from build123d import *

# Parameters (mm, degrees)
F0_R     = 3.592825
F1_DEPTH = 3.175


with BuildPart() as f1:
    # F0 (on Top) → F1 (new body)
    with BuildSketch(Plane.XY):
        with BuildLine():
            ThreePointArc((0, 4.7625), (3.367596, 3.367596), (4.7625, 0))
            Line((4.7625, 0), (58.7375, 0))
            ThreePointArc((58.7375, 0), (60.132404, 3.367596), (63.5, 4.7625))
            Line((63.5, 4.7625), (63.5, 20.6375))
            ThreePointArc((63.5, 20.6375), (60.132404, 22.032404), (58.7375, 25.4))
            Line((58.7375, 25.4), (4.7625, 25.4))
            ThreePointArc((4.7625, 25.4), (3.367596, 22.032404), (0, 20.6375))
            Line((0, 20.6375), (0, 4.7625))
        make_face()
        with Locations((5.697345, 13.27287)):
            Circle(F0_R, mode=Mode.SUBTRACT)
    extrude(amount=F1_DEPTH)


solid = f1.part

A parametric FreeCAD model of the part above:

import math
import FreeCAD as App
import Part
import Sketcher
from FreeCAD import Vector
Q = App.Units.Quantity

doc = App.newDocument("Part")
body = doc.addObject("PartDesign::Body", "Body")

# Sketch on XY plane
sketch1 = body.newObject("Sketcher::SketchObject", "Sketch")
sketch1.AttachmentSupport = (doc.getObject("XY_Plane"), [""])
sketch1.MapMode = "FlatFace"
sketch1.addGeometry([
    Part.ArcOfCircle(Part.Circle(Vector(0, 0, 0), Vector(0, 0, 1), 4.7625), math.radians(0.000002), math.radians(89.999998)),  # 0
    Part.LineSegment(Vector(4.7625, 0, 0), Vector(58.7375, 0, 0)),  # 1
    Part.ArcOfCircle(Part.Circle(Vector(63.5, 0, 0), Vector(0, 0, 1), 4.7625), math.radians(90.000002), math.radians(179.999998)),  # 2
    Part.LineSegment(Vector(63.5, 4.7625, 0), Vector(63.5, 20.6375, 0)),  # 3
    Part.ArcOfCircle(Part.Circle(Vector(63.5, 25.4, 0), Vector(0, 0, 1), 4.7625), math.radians(-179.999998), math.radians(-90.000002)),  # 4
    Part.LineSegment(Vector(58.7375, 25.4, 0), Vector(4.7625, 25.4, 0)),  # 5
    Part.ArcOfCircle(Part.Circle(Vector(0, 25.4, 0), Vector(0, 0, 1), 4.7625), math.radians(-89.999998), math.radians(-0.000002)),  # 6
    Part.LineSegment(Vector(0, 20.6375, 0), Vector(0, 4.7625, 0)),  # 7
    Part.Circle(Vector(5.697345, 13.27287, 0), Vector(0, 0, 1), 3.592825),  # 8
], False)
sketch1.addConstraint([
    Sketcher.Constraint("Coincident", 0, 1, 1, 1),
    Sketcher.Constraint("Coincident", 1, 2, 2, 2),
    Sketcher.Constraint("Coincident", 2, 1, 3, 1),
    Sketcher.Constraint("Coincident", 3, 2, 4, 2),
    Sketcher.Constraint("Coincident", 4, 1, 5, 1),
    Sketcher.Constraint("Coincident", 5, 2, 6, 2),
    Sketcher.Constraint("Coincident", 6, 1, 7, 1),
    Sketcher.Constraint("Coincident", 7, 2, 0, 2),
    Sketcher.Constraint("Horizontal", 1),
    Sketcher.Constraint("Vertical", 3),
    Sketcher.Constraint("Horizontal", 5),
    Sketcher.Constraint("Vertical", 7),
    Sketcher.Constraint("Coincident", 0, 3, -1, 1),
    Sketcher.Constraint("Equal", 0, 2),
    Sketcher.Constraint("Equal", 2, 4),
    Sketcher.Constraint("Equal", 4, 6),
    Sketcher.Constraint("PointOnObject", 2, 3, -1),
    Sketcher.Constraint("PointOnObject", 6, 3, -2),
    Sketcher.Constraint("PointOnObject", 0, 1, -1),
    Sketcher.Constraint("PointOnObject", 6, 1, -2),
    Sketcher.Constraint("Horizontal", 4, 3, 6, 3),
    Sketcher.Constraint("Horizontal", 6, 3, 4, 1),
    Sketcher.Constraint("Vertical", 2, 3, 4, 3),
    Sketcher.Constraint("Vertical", 4, 3, 2, 1),
    Sketcher.Constraint("DistanceY", -1, 1, 4, 3, Q("1 in")),
    Sketcher.Constraint("Radius", 0, Q("0.1875 in")),
    Sketcher.Constraint("DistanceX", -1, 1, 2, 3, Q("2.5 in")),
    Sketcher.Constraint("Diameter", 8, Q("7.18565 mm")),
    Sketcher.Constraint("DistanceY", -1, 1, 8, 3, Q("13.27287 mm")),
    Sketcher.Constraint("DistanceX", -1, 1, 8, 3, Q("5.697345 mm")),
])
pad1 = body.newObject("PartDesign::Pad", "Pad")
pad1.Profile = sketch1
pad1.Length = Q("0.125 in")

doc.recompute()
